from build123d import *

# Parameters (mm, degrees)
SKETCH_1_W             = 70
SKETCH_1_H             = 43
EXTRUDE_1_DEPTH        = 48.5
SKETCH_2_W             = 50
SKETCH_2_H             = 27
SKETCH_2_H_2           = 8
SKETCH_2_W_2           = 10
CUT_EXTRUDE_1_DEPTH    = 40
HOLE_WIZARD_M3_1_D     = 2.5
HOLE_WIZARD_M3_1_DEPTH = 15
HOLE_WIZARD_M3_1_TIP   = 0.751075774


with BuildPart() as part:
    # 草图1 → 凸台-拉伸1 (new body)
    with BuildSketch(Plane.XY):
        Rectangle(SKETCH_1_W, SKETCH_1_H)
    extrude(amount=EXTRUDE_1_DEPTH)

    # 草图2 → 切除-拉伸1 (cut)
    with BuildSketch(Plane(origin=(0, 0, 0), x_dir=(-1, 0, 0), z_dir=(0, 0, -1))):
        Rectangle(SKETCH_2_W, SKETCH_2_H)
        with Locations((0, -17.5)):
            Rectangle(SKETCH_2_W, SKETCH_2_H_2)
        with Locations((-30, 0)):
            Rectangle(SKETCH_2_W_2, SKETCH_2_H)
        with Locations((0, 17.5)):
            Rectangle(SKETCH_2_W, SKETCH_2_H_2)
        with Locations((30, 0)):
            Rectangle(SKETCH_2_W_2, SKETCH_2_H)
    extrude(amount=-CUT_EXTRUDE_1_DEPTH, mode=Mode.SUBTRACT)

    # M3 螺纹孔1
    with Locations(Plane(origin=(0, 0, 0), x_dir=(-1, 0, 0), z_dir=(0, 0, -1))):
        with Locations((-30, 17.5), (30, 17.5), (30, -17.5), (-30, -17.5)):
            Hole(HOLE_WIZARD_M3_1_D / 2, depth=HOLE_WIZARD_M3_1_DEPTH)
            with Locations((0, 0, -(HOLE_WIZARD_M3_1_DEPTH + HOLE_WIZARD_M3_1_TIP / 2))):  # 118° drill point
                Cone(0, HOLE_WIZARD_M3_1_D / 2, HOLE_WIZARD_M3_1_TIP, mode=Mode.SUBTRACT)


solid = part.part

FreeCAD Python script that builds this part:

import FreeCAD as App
import Part
import Sketcher
Q = App.Units.Quantity


def add_polygon(sketch, points):
    """Adds a closed chain of lines whose ends are joined by coincident constraints."""
    first, n = sketch.GeometryCount, len(points)
    for a, b in zip(points, points[1:] + points[:1]):
        sketch.addGeometry(Part.LineSegment(App.Vector(*a, 0), App.Vector(*b, 0)), False)
    for i in range(n):
        sketch.addConstraint(Sketcher.Constraint("Coincident", first + i, 2, first + (i + 1) % n, 1))

doc = App.newDocument("Part")
body = doc.addObject("PartDesign::Body", "Body")

sketch1 = doc.addObject("Sketcher::SketchObject", "Sketch")
body.addObject(sketch1)
sketch1.AttachmentSupport = (doc.XY_Plane, [""])
sketch1.MapMode = "FlatFace"
add_polygon(sketch1, [(-35, 22), (-35, -22), (35, -22), (35, 22)])
sketch1.addConstraint([
    Sketcher.Constraint("Vertical", 0),
    Sketcher.Constraint("Horizontal", 1),
    Sketcher.Constraint("Vertical", 2),
    Sketcher.Constraint("Horizontal", 3),
    Sketcher.Constraint("Symmetric", 0, 2, 2, 2, -1, 1),
    Sketcher.Constraint("DistanceX", 1, 1, 1, 2, Q("70 mm")),
    Sketcher.Constraint("DistanceY", 0, 2, 0, 1, Q("43 mm")),
])
pad1 = doc.addObject("PartDesign::Pad", "Pad")
body.addObject(pad1)
pad1.Profile = sketch1
pad1.Length = 48.5

sketch2 = doc.addObject("Sketcher::SketchObject", "Sketch001")
body.addObject(sketch2)
sketch2.AttachmentSupport = (doc.XY_Plane, [""])
sketch2.MapMode = "FlatFace"
add_polygon(sketch2, [(25, -14), (25, -22), (-25, -22), (-25, -14), (-35, -14), (-35, 14), (-25, 14), (-25, 22), (25, 22), (25, 14), (35, 14), (35, -14)])
sketch2.addConstraint([
    Sketcher.Constraint("Vertical", 0),
    Sketcher.Constraint("Horizontal", 1),
    Sketcher.Constraint("Vertical", 2),
    Sketcher.Constraint("Horizontal", 3),
    Sketcher.Constraint("Vertical", 4),
    Sketcher.Constraint("Horizontal", 5),
    Sketcher.Constraint("Vertical", 6),
    Sketcher.Constraint("Horizontal", 7),
    Sketcher.Constraint("Vertical", 8),
    Sketcher.Constraint("Horizontal", 9),
    Sketcher.Constraint("Vertical", 10),
    Sketcher.Constraint("Horizontal", 11),
    Sketcher.Constraint("Symmetric", 0, 2, 6, 2, -1, 1),
    Sketcher.Constraint("Symmetric", 2, 2, 8, 2, -1, 1),
    Sketcher.Constraint("Symmetric", 4, 2, 10, 2, -1, 1),
    Sketcher.Constraint("Symmetric", 5, 2, 8, 2, -2),
    Sketcher.Constraint("DistanceX", 1, 2, 1, 1, Q("50 mm")),
    Sketcher.Constraint("DistanceX", 3, 2, 3, 1, Q("10 mm")),
    Sketcher.Constraint("DistanceY", 0, 2, 0, 1, Q("8 mm")),
    Sketcher.Constraint("DistanceY", 4, 1, 4, 2, Q("27 mm")),
])
pocket1 = doc.addObject("PartDesign::Pocket", "Pocket")
body.addObject(pocket1)
pocket1.Profile = sketch2
pocket1.Length = 40
pocket1.Reversed = True

sketch3 = doc.addObject("Sketcher::SketchObject", "Sketch002")
body.addObject(sketch3)
sketch3.AttachmentSupport = (doc.XY_Plane, [""])
sketch3.MapMode = "FlatFace"
sketch3.addGeometry([
    Part.Circle(App.Vector(30, 17.5, 0), App.Vector(0, 0, 1), 1.2),
    Part.Circle(App.Vector(-30, 17.5, 0), App.Vector(0, 0, 1), 1.2),
    Part.Circle(App.Vector(-30, -17.5, 0), App.Vector(0, 0, 1), 1.2),
    Part.Circle(App.Vector(30, -17.5, 0), App.Vector(0, 0, 1), 1.2),
], False)
sketch3.addConstraint([
    Sketcher.Constraint("Equal", 0, 1),
    Sketcher.Constraint("Equal", 1, 2),
    Sketcher.Constraint("Equal", 2, 3),
    Sketcher.Constraint("Symmetric", 0, 3, 2, 3, -1, 1),
    Sketcher.Constraint("Symmetric", 1, 3, 3, 3, -1, 1),
    Sketcher.Constraint("Symmetric", 0, 3, 1, 3, -2),
    Sketcher.Constraint("Diameter", 0, Q("2.5 mm")),
    Sketcher.Constraint("DistanceX", -1, 1, 0, 3, Q("30 mm")),
    Sketcher.Constraint("DistanceY", 2, 3, 1, 3, Q("35 mm")),
])
doc.recompute()
hole = doc.addObject("PartDesign::Hole", "Hole")
body.addObject(hole)
hole.Profile = sketch3
hole.ThreadType = "None"
hole.Diameter = 2.5
hole.DepthType = "Dimension"
hole.Depth = 15
hole.DrillPoint = "Angled"
hole.DrillPointAngle = 118
hole.Reversed = True

doc.recompute()
